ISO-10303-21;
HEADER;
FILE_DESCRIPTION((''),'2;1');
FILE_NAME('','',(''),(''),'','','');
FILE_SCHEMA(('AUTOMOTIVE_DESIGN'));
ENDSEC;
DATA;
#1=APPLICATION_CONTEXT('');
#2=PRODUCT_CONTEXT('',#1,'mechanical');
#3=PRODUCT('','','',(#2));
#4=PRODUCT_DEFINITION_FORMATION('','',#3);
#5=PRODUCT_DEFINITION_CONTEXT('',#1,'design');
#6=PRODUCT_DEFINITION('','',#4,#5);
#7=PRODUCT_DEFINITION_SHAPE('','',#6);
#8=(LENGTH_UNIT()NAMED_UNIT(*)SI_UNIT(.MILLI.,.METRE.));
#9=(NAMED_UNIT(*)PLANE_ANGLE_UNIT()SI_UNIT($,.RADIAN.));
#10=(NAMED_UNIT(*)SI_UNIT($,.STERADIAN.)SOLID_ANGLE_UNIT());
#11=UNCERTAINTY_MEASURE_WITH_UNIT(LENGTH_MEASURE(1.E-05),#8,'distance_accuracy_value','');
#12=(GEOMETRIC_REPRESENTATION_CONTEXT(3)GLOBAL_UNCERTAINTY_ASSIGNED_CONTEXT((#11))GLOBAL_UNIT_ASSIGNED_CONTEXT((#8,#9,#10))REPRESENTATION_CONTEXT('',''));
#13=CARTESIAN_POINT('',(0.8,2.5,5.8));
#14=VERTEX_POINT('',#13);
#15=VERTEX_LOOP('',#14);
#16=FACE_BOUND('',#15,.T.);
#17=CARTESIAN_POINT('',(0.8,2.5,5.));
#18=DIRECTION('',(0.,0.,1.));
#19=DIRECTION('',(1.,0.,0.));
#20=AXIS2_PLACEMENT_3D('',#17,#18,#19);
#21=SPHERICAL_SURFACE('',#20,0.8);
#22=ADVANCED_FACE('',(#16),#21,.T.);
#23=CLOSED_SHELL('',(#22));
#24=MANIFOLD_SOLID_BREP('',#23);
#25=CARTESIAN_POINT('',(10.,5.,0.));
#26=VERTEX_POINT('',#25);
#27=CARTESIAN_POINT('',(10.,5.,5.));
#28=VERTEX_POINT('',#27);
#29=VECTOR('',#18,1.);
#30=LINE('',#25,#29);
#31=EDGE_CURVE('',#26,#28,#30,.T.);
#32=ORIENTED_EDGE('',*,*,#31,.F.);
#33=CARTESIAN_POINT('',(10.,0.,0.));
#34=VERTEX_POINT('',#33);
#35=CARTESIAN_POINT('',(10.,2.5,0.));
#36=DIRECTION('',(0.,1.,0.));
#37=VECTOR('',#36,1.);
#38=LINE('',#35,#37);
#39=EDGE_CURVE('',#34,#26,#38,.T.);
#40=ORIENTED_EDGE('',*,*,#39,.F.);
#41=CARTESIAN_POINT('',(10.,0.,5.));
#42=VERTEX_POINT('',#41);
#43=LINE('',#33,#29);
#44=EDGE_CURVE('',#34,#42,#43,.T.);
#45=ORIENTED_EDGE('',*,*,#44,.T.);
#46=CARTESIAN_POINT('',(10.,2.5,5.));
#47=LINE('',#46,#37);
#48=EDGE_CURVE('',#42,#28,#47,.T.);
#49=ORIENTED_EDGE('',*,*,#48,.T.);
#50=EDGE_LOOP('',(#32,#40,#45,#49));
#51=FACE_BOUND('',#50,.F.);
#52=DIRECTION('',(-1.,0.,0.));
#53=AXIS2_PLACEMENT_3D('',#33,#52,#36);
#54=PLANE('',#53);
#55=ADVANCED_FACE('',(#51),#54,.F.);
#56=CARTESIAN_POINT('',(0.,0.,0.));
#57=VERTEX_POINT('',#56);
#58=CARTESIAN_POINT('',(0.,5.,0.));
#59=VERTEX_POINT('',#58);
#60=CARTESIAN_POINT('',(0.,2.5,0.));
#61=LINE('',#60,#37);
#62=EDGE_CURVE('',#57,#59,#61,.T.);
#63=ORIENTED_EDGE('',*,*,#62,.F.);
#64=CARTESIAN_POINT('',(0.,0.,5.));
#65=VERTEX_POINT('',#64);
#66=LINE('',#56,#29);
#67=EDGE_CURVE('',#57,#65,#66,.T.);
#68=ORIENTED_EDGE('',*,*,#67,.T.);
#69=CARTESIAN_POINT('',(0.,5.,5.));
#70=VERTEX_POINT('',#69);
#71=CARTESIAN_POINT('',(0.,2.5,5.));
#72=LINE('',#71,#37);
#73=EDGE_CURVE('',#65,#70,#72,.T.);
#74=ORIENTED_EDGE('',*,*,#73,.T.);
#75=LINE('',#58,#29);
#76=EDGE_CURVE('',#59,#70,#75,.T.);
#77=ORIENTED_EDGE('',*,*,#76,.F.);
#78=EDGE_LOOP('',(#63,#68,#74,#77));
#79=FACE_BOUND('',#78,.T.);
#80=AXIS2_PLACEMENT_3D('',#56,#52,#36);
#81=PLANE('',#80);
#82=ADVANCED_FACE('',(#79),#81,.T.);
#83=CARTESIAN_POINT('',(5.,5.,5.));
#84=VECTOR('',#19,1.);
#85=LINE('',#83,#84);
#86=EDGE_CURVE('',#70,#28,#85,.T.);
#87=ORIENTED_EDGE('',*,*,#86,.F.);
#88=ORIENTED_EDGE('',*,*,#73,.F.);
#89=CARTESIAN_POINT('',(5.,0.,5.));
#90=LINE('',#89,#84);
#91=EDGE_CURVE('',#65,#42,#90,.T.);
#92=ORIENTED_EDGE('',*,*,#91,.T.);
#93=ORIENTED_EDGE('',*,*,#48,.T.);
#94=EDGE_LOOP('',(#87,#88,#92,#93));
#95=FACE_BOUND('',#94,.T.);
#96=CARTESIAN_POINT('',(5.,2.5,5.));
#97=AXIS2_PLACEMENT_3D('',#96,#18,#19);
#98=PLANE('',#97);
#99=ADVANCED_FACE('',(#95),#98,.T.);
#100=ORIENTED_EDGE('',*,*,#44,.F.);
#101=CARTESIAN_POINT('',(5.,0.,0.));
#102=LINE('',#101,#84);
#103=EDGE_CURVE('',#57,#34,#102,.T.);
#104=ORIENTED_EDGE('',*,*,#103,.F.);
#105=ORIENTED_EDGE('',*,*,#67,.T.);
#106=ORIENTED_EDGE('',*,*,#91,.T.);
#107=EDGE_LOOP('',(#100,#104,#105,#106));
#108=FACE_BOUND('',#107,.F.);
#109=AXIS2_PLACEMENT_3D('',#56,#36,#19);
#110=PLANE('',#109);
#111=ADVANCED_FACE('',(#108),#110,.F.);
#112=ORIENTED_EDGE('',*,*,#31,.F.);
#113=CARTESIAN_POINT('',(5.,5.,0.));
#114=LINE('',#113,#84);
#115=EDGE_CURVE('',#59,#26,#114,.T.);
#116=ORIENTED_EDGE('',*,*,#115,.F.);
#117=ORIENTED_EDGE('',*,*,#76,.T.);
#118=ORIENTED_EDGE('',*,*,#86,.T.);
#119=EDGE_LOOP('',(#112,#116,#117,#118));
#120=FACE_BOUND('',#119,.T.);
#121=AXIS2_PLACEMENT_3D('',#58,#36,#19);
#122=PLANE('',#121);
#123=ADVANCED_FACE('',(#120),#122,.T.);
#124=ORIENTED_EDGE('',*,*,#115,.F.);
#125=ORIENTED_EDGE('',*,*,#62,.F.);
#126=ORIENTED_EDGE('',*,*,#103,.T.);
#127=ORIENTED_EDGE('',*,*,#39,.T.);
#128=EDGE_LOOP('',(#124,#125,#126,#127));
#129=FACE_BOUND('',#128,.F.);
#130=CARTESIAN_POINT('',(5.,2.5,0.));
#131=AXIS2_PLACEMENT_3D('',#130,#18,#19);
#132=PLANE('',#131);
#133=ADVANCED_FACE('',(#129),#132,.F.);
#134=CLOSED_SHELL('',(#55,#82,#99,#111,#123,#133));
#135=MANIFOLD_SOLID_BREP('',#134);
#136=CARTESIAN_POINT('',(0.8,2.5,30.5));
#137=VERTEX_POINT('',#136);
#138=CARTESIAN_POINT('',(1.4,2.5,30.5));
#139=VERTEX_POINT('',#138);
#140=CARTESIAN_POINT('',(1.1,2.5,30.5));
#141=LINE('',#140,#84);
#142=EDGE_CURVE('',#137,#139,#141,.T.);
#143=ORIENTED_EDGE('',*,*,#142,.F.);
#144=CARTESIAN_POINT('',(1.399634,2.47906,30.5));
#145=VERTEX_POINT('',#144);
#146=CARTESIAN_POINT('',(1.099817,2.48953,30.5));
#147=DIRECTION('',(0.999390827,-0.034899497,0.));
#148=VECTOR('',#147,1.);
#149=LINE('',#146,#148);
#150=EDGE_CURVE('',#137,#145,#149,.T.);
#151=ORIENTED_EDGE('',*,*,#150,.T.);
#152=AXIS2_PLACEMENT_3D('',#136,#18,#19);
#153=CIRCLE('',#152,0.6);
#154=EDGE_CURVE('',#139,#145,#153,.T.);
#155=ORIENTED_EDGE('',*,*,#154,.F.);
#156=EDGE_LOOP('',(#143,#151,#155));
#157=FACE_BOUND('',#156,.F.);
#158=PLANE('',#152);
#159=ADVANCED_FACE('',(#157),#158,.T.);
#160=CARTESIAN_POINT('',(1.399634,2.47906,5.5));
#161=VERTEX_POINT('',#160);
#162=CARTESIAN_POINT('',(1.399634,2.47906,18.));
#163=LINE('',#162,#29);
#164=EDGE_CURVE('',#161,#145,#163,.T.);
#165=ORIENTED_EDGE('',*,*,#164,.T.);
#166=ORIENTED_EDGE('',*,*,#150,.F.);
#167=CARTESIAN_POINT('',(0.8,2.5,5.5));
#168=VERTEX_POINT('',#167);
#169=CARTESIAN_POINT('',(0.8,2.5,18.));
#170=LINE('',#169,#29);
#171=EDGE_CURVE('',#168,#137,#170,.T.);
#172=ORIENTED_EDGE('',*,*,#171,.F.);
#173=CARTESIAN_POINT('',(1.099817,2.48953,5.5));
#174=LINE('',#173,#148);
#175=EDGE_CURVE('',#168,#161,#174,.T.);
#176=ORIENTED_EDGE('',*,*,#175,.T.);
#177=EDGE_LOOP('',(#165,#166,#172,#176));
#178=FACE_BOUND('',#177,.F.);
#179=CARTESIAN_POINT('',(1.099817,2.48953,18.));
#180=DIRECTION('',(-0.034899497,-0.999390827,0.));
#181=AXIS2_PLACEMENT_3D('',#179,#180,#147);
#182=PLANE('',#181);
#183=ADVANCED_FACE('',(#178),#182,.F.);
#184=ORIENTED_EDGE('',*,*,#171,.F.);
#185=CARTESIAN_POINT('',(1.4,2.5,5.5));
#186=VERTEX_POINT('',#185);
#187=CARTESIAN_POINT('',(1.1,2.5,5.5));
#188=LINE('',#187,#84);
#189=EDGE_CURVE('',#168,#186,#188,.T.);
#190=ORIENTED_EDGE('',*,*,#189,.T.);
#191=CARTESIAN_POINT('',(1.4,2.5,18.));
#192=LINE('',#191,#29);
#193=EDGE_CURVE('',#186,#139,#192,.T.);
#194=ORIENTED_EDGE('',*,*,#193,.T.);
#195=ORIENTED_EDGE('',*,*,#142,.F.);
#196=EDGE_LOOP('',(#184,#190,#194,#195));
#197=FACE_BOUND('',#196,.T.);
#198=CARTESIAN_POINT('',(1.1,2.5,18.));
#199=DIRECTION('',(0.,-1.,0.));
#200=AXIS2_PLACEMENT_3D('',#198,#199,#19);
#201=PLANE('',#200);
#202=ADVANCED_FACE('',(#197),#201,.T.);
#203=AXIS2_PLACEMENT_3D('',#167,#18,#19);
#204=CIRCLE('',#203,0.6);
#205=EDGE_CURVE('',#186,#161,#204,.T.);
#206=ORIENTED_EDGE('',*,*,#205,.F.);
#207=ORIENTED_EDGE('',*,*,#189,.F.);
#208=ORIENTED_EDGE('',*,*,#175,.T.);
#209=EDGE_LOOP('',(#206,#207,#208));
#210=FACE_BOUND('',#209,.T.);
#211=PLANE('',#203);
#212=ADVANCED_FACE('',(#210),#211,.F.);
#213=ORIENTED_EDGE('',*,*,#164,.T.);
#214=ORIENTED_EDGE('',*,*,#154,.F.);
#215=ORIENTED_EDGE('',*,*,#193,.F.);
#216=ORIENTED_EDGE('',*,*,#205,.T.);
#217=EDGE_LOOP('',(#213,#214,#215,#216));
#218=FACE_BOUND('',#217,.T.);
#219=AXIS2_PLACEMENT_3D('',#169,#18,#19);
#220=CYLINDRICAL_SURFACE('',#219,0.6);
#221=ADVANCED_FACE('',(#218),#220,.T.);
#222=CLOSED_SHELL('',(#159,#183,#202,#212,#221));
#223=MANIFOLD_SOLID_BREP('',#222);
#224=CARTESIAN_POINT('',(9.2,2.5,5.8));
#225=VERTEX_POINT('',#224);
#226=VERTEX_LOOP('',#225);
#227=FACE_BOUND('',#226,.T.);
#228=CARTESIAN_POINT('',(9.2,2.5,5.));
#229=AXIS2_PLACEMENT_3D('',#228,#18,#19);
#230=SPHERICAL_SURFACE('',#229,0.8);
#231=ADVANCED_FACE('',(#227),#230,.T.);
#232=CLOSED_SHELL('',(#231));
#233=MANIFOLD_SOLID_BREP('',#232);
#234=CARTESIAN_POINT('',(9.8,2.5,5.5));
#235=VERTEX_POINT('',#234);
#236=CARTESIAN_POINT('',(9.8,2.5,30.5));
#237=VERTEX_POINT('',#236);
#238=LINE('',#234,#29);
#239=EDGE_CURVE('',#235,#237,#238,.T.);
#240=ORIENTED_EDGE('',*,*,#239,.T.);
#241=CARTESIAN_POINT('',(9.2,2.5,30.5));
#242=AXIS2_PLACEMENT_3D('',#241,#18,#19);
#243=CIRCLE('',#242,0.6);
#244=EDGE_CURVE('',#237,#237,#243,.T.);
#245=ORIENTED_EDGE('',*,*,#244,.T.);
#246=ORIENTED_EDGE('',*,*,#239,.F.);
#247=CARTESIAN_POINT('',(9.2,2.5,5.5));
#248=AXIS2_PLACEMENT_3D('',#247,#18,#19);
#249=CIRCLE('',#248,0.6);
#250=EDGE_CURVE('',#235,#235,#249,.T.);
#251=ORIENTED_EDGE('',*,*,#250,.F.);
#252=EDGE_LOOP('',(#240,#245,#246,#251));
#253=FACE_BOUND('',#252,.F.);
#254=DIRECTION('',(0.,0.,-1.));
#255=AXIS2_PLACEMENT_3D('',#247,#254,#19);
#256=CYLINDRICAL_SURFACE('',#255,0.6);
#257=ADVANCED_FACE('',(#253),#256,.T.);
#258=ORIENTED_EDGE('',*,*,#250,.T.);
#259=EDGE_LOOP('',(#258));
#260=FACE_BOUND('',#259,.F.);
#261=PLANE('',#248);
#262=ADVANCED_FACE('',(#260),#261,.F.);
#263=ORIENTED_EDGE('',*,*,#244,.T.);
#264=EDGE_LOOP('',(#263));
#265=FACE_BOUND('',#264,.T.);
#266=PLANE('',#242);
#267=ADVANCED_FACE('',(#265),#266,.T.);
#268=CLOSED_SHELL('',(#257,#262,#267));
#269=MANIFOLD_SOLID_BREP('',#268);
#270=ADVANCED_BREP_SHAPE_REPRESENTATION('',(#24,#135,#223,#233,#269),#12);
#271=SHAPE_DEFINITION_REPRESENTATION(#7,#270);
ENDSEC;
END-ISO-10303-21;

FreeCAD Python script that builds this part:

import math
import FreeCAD as App
import Part
import Sketcher

doc = App.newDocument("Part")
body = doc.addObject("PartDesign::Body", "Body")

# Sketch on XY plane
sketch1 = body.newObject("Sketcher::SketchObject", "Sketch")
sketch1.AttachmentSupport = (doc.getObject("XY_Plane"), [""])
sketch1.MapMode = "FlatFace"
sketch1.addGeometry([
    Part.LineSegment(App.Vector(0, 5, 0), App.Vector(0, 0, 0)),
    Part.LineSegment(App.Vector(0, 0, 0), App.Vector(10, 0, 0)),
    Part.LineSegment(App.Vector(10, 0, 0), App.Vector(10, 5, 0)),
    Part.LineSegment(App.Vector(10, 5, 0), App.Vector(0, 5, 0)),
], False)
sketch1.addConstraint([
    Sketcher.Constraint("Coincident", 0, 2, 1, 1),
    Sketcher.Constraint("Coincident", 1, 2, 2, 1),
    Sketcher.Constraint("Coincident", 2, 2, 3, 1),
    Sketcher.Constraint("Coincident", 3, 2, 0, 1),
    Sketcher.Constraint("Vertical", 0),
    Sketcher.Constraint("Horizontal", 1),
    Sketcher.Constraint("Vertical", 2),
    Sketcher.Constraint("Horizontal", 3),
    Sketcher.Constraint("Coincident", 0, 2, -1, 1),
    Sketcher.Constraint("DistanceX", 1, 1, 1, 2, 10.0),
    Sketcher.Constraint("DistanceY", 0, 2, 0, 1, 5.0),
])
pad1 = body.newObject("PartDesign::Pad", "Pad")
pad1.Profile = sketch1
pad1.Length = 5
body2 = doc.addObject("PartDesign::Body", "Body001")
body2.AllowCompound = True

# Sketch on XZ plane
sketch2 = body2.newObject("Sketcher::SketchObject", "Sketch001")
sketch2.AttachmentSupport = (doc.getObject("XZ_Plane001"), [""])
sketch2.MapMode = "FlatFace"
sketch2.AttachmentOffset = App.Placement(App.Vector(0, 0, -2.5), App.Rotation())
sketch2.addGeometry([
    Part.ArcOfCircle(Part.Circle(App.Vector(0.8, 5, 0), App.Vector(0, 0, 1), 0.8), math.radians(-90), math.radians(90)),
    Part.LineSegment(App.Vector(0.8, 5.8, 0), App.Vector(0.8, 4.2, 0)),
], False)
sketch2.addGeometry(Part.LineSegment(App.Vector(0.8, 4.2, 0), App.Vector(0.8, 5.8, 0)), True)  # axis
sketch2.addConstraint([
    Sketcher.Constraint("Coincident", 0, 1, 1, 2),
    Sketcher.Constraint("Coincident", 1, 1, 0, 2),
    Sketcher.Constraint("Vertical", 1),
    Sketcher.Constraint("Vertical", 2),
    Sketcher.Constraint("Coincident", 2, 1, 0, 1),
    Sketcher.Constraint("Equal", 1, 2),
    Sketcher.Constraint("Radius", 0, 0.8),
    Sketcher.Constraint("DistanceY", -1, 1, 0, 3, 5.0),
    Sketcher.Constraint("DistanceX", -1, 1, 0, 3, 0.8),
    Sketcher.Constraint("DistanceX", -1, 1, 0, 1, 0.8),
])
revolution = body2.newObject("PartDesign::Revolution", "Revolution")
revolution.Profile = sketch2
revolution.ReferenceAxis = (sketch2, ["Axis0"])
revolution.Angle = 360

# Sketch on XZ plane
sketch3 = body2.newObject("Sketcher::SketchObject", "Sketch002")
sketch3.AttachmentSupport = (doc.getObject("XZ_Plane001"), [""])
sketch3.MapMode = "FlatFace"
sketch3.AttachmentOffset = App.Placement(App.Vector(0, 0, -2.5), App.Rotation())
sketch3.addGeometry([
    Part.ArcOfCircle(Part.Circle(App.Vector(9.2, 5, 0), App.Vector(0, 0, 1), 0.8), math.radians(-90), math.radians(90)),
    Part.LineSegment(App.Vector(9.2, 5.8, 0), App.Vector(9.2, 4.2, 0)),
], False)
sketch3.addGeometry(Part.LineSegment(App.Vector(9.2, 4.2, 0), App.Vector(9.2, 5.8, 0)), True)  # axis
sketch3.addConstraint([
    Sketcher.Constraint("Coincident", 0, 1, 1, 2),
    Sketcher.Constraint("Coincident", 1, 1, 0, 2),
    Sketcher.Constraint("Vertical", 1),
    Sketcher.Constraint("Vertical", 2),
    Sketcher.Constraint("Coincident", 2, 1, 0, 1),
    Sketcher.Constraint("Equal", 1, 2),
    Sketcher.Constraint("Radius", 0, 0.8),
    Sketcher.Constraint("DistanceY", -1, 1, 0, 3, 5.0),
    Sketcher.Constraint("DistanceX", -1, 1, 0, 3, 9.2),
    Sketcher.Constraint("DistanceX", -1, 1, 0, 1, 9.2),
])
revolution2 = body2.newObject("PartDesign::Revolution", "Revolution001")
revolution2.Profile = sketch3
revolution2.ReferenceAxis = (sketch3, ["Axis0"])
revolution2.Angle = 360
body3 = doc.addObject("PartDesign::Body", "Body002")
body3.AllowCompound = True

# Sketch on XY plane
sketch4 = body3.newObject("Sketcher::SketchObject", "Sketch003")
sketch4.AttachmentSupport = (doc.getObject("XY_Plane002"), [""])
sketch4.MapMode = "FlatFace"
sketch4.AttachmentOffset = App.Placement(App.Vector(0, 0, 5.5), App.Rotation())
sketch4.addGeometry(Part.Circle(App.Vector(9.2, 2.5, 0), App.Vector(0, 0, 1), 0.6), False)
sketch4.addConstraint([
    Sketcher.Constraint("Diameter", 0, 1.2),
    Sketcher.Constraint("DistanceX", -1, 1, 0, 3, 9.2),
    Sketcher.Constraint("DistanceY", -1, 1, 0, 3, 2.5),
])
pad2 = body3.newObject("PartDesign::Pad", "Pad001")
pad2.Profile = sketch4
pad2.Length = 25

# Sketch on XZ plane
sketch5 = body3.newObject("Sketcher::SketchObject", "Sketch004")
sketch5.AttachmentSupport = (doc.getObject("XZ_Plane002"), [""])
sketch5.MapMode = "FlatFace"
sketch5.AttachmentOffset = App.Placement(App.Vector(0, 0, -2.5), App.Rotation())
sketch5.addGeometry([
    Part.LineSegment(App.Vector(0.8, 30.5, 0), App.Vector(0.8, 5.5, 0)),
    Part.LineSegment(App.Vector(0.8, 5.5, 0), App.Vector(1.4, 5.5, 0)),
    Part.LineSegment(App.Vector(1.4, 5.5, 0), App.Vector(1.4, 30.5, 0)),
    Part.LineSegment(App.Vector(1.4, 30.5, 0), App.Vector(0.8, 30.5, 0)),
], False)
sketch5.addGeometry(Part.LineSegment(App.Vector(0.8, 5.5, 0), App.Vector(0.8, 30.5, 0)), True)  # axis
sketch5.addConstraint([
    Sketcher.Constraint("Coincident", 0, 2, 1, 1),
    Sketcher.Constraint("Coincident", 1, 2, 2, 1),
    Sketcher.Constraint("Coincident", 2, 2, 3, 1),
    Sketcher.Constraint("Coincident", 3, 2, 0, 1),
    Sketcher.Constraint("Vertical", 0),
    Sketcher.Constraint("Horizontal", 1),
    Sketcher.Constraint("Vertical", 2),
    Sketcher.Constraint("Horizontal", 3),
    Sketcher.Constraint("Vertical", 4),
    Sketcher.Constraint("Coincident", 4, 1, 0, 2),
    Sketcher.Constraint("Horizontal", 2, 2, 4, 2),
    Sketcher.Constraint("DistanceY", 0, 2, 0, 1, 25.0),
    Sketcher.Constraint("DistanceX", 1, 1, 1, 2, 0.6),
    Sketcher.Constraint("DistanceX", -1, 1, 0, 2, 0.8),
    Sketcher.Constraint("DistanceY", -1, 1, 0, 2, 5.5),
])
revolution3 = body3.newObject("PartDesign::Revolution", "Revolution002")
revolution3.Profile = sketch5
revolution3.ReferenceAxis = (sketch5, ["Axis0"])
revolution3.Angle = 358

doc.recompute()
